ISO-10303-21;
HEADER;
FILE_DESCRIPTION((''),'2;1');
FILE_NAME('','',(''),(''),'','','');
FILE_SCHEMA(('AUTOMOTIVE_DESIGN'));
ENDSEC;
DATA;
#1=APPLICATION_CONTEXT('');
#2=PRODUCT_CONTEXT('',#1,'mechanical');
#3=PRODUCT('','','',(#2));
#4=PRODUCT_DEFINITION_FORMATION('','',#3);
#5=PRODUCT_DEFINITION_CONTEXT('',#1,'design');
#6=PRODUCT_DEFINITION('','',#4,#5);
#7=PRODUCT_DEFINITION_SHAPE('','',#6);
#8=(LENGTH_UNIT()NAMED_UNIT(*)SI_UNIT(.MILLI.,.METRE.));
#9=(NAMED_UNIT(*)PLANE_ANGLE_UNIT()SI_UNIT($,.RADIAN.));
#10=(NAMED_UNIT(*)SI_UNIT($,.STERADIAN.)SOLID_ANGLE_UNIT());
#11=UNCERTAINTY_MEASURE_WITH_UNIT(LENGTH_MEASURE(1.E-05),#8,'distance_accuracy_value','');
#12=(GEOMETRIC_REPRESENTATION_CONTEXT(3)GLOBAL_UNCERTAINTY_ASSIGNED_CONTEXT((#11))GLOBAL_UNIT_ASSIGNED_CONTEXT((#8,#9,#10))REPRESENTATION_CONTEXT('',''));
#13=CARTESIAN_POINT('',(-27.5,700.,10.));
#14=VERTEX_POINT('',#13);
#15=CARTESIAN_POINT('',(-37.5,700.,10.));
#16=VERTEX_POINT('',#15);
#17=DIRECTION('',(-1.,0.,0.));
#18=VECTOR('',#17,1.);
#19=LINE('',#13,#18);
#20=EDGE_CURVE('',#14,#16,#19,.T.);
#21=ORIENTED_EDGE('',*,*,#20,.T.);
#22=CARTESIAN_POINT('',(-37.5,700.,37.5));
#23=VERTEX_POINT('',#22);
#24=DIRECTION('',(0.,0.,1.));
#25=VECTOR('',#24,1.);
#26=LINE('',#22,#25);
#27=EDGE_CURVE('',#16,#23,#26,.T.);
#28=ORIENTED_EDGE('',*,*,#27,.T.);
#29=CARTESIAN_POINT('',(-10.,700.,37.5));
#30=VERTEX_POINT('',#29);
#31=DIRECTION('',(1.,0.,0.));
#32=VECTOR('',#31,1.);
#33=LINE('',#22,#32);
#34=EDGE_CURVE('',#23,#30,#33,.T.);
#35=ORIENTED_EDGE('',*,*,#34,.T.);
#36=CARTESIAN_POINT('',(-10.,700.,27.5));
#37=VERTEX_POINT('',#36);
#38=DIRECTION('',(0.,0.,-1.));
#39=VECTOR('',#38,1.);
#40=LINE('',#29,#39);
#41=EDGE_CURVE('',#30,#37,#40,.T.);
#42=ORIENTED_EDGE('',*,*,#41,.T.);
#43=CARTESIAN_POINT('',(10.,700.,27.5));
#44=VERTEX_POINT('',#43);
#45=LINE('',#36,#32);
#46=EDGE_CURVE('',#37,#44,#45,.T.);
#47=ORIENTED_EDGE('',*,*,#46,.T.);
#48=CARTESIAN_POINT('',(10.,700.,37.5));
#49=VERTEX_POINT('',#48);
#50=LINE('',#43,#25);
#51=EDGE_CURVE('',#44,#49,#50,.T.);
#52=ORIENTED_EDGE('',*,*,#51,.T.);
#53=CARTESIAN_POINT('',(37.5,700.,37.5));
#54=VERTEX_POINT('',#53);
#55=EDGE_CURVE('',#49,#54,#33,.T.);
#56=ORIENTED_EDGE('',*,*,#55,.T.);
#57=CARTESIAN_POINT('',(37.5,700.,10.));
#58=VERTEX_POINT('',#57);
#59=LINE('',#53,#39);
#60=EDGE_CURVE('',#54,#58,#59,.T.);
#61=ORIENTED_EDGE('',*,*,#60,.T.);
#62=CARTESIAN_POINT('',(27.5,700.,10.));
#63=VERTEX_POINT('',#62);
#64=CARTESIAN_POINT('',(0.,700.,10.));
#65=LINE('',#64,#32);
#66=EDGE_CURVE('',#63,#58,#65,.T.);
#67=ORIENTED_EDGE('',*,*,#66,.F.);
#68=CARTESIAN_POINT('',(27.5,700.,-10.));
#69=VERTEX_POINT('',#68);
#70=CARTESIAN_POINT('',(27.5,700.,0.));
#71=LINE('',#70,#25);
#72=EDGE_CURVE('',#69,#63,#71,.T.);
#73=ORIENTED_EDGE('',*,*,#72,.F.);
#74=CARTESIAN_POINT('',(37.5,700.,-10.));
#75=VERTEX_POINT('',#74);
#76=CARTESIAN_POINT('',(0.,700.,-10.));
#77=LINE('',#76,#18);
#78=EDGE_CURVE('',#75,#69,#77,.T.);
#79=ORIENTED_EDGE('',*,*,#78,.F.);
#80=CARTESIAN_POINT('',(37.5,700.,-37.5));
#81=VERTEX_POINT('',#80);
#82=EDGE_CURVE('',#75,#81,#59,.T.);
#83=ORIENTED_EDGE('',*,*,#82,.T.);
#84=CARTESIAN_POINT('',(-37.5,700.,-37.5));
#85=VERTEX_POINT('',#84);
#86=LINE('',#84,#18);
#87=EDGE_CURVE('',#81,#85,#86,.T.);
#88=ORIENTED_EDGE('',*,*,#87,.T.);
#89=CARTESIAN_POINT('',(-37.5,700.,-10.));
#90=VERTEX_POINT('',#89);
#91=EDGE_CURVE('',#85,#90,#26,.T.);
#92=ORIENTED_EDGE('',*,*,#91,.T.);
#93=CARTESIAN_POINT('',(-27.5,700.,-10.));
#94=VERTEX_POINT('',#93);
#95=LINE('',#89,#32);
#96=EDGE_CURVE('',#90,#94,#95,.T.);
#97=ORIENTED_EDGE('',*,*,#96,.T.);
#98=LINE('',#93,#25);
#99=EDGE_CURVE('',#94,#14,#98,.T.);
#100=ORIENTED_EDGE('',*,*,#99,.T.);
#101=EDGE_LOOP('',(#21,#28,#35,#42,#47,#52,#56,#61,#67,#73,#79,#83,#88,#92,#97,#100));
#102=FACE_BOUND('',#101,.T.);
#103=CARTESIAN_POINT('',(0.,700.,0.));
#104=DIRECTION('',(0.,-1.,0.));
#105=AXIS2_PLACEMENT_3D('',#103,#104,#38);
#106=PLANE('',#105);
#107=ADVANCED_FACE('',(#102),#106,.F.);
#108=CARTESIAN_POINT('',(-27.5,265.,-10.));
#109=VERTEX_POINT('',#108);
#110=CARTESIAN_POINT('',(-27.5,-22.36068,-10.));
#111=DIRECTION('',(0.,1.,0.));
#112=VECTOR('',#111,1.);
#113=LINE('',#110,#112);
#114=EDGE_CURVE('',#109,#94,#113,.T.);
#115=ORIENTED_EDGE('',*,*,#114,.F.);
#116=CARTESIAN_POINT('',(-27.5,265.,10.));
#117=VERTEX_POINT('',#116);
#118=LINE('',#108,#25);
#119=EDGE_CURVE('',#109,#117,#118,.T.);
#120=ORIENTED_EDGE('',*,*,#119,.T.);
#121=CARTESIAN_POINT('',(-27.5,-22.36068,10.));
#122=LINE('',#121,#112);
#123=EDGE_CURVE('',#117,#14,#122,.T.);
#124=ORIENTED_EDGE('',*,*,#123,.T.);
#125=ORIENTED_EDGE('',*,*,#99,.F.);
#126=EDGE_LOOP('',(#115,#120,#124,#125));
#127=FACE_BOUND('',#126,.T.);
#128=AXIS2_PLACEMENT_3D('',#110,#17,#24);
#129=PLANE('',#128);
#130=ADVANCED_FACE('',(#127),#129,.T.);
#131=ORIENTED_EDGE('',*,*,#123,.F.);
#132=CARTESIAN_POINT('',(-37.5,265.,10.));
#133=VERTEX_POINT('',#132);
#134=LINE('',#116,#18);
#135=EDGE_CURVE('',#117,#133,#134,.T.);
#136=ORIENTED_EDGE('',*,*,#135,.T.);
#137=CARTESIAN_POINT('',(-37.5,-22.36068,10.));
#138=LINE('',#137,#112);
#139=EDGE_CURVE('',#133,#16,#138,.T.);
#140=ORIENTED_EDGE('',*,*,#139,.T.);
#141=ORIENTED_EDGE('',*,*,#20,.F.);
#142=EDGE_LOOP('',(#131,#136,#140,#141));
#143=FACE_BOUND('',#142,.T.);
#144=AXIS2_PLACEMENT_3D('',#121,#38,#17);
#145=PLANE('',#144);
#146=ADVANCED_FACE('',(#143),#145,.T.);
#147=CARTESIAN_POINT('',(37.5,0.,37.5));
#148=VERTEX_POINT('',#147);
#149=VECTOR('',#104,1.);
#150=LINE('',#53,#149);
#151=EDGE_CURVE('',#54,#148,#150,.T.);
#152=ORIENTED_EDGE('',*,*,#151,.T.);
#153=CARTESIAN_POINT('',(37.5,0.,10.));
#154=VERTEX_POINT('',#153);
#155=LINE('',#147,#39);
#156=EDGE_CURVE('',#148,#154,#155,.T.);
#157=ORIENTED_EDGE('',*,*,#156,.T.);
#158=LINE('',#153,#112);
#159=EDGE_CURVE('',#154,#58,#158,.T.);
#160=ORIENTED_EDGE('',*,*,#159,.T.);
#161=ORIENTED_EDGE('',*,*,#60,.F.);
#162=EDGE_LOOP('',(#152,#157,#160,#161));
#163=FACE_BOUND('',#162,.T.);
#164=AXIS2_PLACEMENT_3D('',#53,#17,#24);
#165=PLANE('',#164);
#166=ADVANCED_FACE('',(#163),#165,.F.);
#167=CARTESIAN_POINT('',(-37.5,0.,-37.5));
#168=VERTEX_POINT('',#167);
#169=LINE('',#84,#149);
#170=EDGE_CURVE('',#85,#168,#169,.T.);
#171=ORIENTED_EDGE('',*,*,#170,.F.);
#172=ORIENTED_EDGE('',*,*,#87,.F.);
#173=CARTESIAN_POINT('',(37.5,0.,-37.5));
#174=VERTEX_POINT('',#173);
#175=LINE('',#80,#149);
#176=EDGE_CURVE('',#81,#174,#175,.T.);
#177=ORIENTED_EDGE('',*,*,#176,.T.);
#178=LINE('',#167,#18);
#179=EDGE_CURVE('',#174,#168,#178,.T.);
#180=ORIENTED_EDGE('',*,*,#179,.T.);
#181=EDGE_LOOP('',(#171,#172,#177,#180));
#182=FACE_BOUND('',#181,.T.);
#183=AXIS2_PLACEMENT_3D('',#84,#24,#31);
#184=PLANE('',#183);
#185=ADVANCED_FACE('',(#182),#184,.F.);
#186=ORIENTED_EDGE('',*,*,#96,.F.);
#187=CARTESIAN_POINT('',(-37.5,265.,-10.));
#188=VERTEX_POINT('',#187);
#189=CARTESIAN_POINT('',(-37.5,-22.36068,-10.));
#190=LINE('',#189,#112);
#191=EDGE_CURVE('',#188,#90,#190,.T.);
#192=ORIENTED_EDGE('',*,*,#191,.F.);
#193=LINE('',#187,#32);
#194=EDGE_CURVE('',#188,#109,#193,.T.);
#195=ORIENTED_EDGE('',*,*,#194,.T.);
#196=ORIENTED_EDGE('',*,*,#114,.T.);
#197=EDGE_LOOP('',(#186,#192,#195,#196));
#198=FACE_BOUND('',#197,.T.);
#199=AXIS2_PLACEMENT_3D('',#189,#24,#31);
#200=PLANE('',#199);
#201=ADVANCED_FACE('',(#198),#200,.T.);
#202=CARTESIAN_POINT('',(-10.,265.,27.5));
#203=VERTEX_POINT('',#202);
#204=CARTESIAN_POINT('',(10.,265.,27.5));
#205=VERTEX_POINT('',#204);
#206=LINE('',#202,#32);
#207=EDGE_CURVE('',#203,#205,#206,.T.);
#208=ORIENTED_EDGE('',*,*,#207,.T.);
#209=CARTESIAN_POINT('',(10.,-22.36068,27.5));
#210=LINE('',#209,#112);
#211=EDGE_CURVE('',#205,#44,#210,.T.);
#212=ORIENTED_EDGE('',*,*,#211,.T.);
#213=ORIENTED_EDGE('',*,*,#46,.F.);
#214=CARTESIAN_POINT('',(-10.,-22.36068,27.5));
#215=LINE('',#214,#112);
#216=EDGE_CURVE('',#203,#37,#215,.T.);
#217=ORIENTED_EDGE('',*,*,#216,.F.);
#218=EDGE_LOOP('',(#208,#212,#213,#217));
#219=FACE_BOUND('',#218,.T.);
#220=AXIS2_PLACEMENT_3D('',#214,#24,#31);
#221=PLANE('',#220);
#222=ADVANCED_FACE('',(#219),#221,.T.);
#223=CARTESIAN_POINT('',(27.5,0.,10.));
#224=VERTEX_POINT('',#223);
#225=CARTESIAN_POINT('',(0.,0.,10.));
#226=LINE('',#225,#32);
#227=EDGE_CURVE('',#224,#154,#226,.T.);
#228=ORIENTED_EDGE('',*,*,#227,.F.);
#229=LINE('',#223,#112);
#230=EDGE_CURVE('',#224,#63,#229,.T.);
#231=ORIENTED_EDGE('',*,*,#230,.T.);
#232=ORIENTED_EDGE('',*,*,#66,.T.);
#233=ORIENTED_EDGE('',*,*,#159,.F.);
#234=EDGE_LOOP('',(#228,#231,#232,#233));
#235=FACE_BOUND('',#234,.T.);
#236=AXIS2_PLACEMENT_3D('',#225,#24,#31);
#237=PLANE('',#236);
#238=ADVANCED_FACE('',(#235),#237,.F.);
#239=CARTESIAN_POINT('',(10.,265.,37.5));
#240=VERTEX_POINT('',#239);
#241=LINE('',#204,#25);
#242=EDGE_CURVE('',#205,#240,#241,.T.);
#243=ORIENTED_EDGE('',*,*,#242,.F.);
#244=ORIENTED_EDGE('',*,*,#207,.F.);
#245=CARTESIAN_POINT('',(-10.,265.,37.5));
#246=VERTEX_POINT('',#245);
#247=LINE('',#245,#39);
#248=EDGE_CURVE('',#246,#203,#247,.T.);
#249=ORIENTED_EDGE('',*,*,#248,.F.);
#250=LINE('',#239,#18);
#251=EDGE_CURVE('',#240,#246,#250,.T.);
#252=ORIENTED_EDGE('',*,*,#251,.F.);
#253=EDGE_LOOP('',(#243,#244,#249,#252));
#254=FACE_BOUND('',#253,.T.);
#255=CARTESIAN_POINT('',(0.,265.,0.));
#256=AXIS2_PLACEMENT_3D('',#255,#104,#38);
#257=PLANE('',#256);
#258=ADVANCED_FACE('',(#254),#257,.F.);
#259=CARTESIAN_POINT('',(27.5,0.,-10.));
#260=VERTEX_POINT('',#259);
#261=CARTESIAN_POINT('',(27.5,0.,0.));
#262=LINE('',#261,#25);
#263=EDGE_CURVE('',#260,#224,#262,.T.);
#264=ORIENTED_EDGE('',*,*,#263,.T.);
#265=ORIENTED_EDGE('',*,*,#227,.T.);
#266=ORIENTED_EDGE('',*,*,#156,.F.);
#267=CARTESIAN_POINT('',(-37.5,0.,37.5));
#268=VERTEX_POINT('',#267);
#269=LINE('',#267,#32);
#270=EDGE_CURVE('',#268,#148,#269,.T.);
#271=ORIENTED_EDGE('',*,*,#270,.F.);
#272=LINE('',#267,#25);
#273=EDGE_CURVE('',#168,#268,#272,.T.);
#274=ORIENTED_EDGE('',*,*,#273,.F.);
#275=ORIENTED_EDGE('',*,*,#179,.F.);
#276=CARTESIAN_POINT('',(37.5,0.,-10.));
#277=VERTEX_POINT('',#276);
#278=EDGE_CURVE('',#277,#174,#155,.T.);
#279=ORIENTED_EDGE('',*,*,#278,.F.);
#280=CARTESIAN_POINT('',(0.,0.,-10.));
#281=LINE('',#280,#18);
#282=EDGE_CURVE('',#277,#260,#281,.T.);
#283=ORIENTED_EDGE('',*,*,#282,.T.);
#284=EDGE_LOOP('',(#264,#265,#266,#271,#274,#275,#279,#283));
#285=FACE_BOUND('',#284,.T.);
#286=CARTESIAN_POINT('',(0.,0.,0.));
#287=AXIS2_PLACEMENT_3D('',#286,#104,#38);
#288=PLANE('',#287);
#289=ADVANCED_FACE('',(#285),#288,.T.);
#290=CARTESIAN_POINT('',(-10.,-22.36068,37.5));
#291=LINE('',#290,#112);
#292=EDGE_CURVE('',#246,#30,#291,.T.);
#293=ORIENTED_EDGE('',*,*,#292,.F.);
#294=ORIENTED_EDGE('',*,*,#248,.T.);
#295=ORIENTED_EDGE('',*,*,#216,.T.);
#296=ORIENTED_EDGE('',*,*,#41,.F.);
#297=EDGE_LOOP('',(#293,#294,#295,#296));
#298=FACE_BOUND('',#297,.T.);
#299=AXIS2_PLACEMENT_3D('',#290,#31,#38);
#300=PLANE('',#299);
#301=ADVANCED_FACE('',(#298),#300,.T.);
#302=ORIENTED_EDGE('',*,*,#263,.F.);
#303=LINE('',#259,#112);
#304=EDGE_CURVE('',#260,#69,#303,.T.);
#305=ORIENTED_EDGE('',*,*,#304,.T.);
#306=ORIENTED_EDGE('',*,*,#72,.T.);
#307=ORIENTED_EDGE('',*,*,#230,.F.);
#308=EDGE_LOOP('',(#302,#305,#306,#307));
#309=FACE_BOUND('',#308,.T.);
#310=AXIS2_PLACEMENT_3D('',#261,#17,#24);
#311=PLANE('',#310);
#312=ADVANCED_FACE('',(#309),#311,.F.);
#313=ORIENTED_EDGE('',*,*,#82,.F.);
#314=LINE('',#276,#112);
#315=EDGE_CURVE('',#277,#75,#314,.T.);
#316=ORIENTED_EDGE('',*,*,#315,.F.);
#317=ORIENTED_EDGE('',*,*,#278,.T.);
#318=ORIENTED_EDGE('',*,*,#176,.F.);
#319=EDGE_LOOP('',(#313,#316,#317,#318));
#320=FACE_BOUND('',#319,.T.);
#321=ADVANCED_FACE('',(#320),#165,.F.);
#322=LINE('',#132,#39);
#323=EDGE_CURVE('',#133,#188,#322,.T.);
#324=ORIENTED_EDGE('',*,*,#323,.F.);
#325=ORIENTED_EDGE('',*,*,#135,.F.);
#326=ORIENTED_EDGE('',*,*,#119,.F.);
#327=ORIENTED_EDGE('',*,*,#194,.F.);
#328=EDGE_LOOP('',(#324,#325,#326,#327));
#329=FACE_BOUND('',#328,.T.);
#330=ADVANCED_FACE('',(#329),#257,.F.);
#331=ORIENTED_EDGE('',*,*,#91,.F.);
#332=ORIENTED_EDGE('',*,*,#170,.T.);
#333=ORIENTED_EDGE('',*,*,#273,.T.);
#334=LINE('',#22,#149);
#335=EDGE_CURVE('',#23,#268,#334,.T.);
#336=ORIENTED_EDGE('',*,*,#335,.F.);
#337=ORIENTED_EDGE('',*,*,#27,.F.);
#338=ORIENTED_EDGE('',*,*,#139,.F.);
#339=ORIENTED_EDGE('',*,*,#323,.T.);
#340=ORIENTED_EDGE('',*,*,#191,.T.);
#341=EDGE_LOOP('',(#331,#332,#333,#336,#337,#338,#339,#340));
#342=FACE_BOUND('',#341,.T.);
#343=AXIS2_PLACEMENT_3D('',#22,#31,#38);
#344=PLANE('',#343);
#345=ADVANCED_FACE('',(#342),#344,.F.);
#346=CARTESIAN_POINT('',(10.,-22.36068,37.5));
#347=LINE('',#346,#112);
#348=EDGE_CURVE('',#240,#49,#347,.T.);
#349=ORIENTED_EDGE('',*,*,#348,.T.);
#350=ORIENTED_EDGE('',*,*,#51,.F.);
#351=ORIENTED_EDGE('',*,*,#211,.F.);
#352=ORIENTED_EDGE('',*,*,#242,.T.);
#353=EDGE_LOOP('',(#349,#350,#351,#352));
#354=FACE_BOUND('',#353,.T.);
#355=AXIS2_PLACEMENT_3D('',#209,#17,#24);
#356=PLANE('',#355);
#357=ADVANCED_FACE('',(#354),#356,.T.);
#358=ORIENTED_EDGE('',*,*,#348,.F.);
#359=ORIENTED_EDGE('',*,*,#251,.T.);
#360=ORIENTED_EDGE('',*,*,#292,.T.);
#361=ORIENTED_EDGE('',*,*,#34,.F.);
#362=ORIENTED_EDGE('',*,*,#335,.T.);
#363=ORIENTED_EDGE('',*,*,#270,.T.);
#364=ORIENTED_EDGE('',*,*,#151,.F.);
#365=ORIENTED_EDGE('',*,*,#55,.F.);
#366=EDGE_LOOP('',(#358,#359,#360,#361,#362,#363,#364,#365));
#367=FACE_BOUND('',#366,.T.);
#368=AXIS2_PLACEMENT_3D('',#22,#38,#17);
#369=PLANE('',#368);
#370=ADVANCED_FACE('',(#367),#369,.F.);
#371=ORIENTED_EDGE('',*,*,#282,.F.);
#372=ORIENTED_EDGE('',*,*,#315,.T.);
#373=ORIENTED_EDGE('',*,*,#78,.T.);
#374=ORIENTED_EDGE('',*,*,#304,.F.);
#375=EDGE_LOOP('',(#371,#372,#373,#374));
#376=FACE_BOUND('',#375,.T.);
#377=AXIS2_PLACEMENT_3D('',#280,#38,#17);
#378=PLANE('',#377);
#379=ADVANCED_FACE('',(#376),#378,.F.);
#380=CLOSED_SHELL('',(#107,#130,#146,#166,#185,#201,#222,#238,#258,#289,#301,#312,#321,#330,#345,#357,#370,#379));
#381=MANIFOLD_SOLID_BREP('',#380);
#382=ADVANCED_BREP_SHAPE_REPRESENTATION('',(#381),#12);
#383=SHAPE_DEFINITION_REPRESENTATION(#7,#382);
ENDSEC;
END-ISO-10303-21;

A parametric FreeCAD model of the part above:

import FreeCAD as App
import Part
import Sketcher
from FreeCAD import Vector
Q = App.Units.Quantity


def add_polygon(sketch, points):
    """Adds a closed chain of lines whose ends are joined by coincident constraints."""
    first, n = sketch.GeometryCount, len(points)
    for a, b in zip(points, points[1:] + points[:1]):
        sketch.addGeometry(Part.LineSegment(App.Vector(*a, 0), App.Vector(*b, 0)), False)
    for i in range(n):
        sketch.addConstraint(Sketcher.Constraint("Coincident", first + i, 2, first + (i + 1) % n, 1))

doc = App.newDocument("Part")
body = doc.addObject("PartDesign::Body", "Body")

sketch1 = body.newObject("Sketcher::SketchObject", "Sketch")
sketch1.AttachmentSupport = (doc.getObject("XZ_Plane"), [""])
sketch1.MapMode = "FlatFace"
add_polygon(sketch1, [(-37.5, -37.5), (-37.5, 37.5), (37.5, 37.5), (37.5, -37.5)])
sketch1.addConstraint(Sketcher.Constraint("Vertical", 0))
sketch1.addConstraint(Sketcher.Constraint("Horizontal", 1))
sketch1.addConstraint(Sketcher.Constraint("Vertical", 2))
sketch1.addConstraint(Sketcher.Constraint("Horizontal", 3))
sketch1.addConstraint(Sketcher.Constraint("Symmetric", 0, 2, 2, 2, -1, 1))
sketch1.addConstraint(Sketcher.Constraint("Equal", 3, 0))
sketch1.addConstraint(Sketcher.Constraint("DistanceX", 1, 1, 1, 2, Q("75 mm")))
pad1 = body.newObject("PartDesign::Pad", "Pad")
pad1.Profile = sketch1
pad1.Length = 700
pad1.Reversed = True

sketch2 = body.newObject("Sketcher::SketchObject", "Sketch001")
sketch2.AttachmentSupport = (doc.getObject("XZ_Plane"), [""])
sketch2.MapMode = "FlatFace"
sketch2.AttachmentOffset = App.Placement(Vector(0, 0, -700), App.Rotation())
add_polygon(sketch2, [(-10, 27.5), (-10, 37.5), (10, 37.5), (10, 27.5)])
add_polygon(sketch2, [(-37.5, -10), (-37.5, 10), (-27.5, 10), (-27.5, -10)])
sketch2.addConstraint(Sketcher.Constraint("Vertical", 0))
sketch2.addConstraint(Sketcher.Constraint("Horizontal", 1))
sketch2.addConstraint(Sketcher.Constraint("Vertical", 2))
sketch2.addConstraint(Sketcher.Constraint("Horizontal", 3))
sketch2.addConstraint(Sketcher.Constraint("Vertical", 4))
sketch2.addConstraint(Sketcher.Constraint("Horizontal", 5))
sketch2.addConstraint(Sketcher.Constraint("Vertical", 6))
sketch2.addConstraint(Sketcher.Constraint("Horizontal", 7))
sketch2.addConstraint(Sketcher.Constraint("Equal", 7, 0))
sketch2.addConstraint(Sketcher.Constraint("Equal", 3, 4))
sketch2.addConstraint(Sketcher.Constraint("DistanceX", 1, 1, 1, 2, Q("20 mm")))
sketch2.addConstraint(Sketcher.Constraint("DistanceX", 5, 1, 5, 2, Q("10 mm")))
sketch2.addConstraint(Sketcher.Constraint("DistanceX", 0, 2, -1, 1, Q("10 mm")))
sketch2.addConstraint(Sketcher.Constraint("DistanceY", -1, 1, 4, 2, Q("10 mm")))
sketch2.addConstraint(Sketcher.Constraint("DistanceY", -1, 1, 0, 2, Q("37.5 mm")))
sketch2.addConstraint(Sketcher.Constraint("DistanceX", 4, 2, -1, 1, Q("37.5 mm")))
pocket1 = body.newObject("PartDesign::Pocket", "Pocket")
pocket1.Profile = sketch2
pocket1.Length = 435
pocket1.Reversed = True

sketch3 = body.newObject("Sketcher::SketchObject", "Sketch002")
sketch3.AttachmentSupport = (doc.getObject("XZ_Plane"), [""])
sketch3.MapMode = "FlatFace"
sketch3.AttachmentOffset = App.Placement(Vector(0, 0, -700), App.Rotation())
add_polygon(sketch3, [(27.5, -10), (27.5, 10), (37.5, 10), (37.5, -10)])
sketch3.addConstraint(Sketcher.Constraint("Vertical", 0))
sketch3.addConstraint(Sketcher.Constraint("Horizontal", 1))
sketch3.addConstraint(Sketcher.Constraint("Vertical", 2))
sketch3.addConstraint(Sketcher.Constraint("Horizontal", 3))
sketch3.addConstraint(Sketcher.Constraint("DistanceX", 1, 1, 1, 2, Q("10 mm")))
sketch3.addConstraint(Sketcher.Constraint("DistanceY", 0, 1, 0, 2, Q("20 mm")))
sketch3.addConstraint(Sketcher.Constraint("DistanceY", -1, 1, 0, 2, Q("10 mm")))
sketch3.addConstraint(Sketcher.Constraint("DistanceX", -1, 1, 0, 2, Q("27.5 mm")))
pocket2 = body.newObject("PartDesign::Pocket", "Pocket001")
pocket2.Profile = sketch3
pocket2.Type = "ThroughAll"
pocket2.Reversed = True

doc.recompute()
